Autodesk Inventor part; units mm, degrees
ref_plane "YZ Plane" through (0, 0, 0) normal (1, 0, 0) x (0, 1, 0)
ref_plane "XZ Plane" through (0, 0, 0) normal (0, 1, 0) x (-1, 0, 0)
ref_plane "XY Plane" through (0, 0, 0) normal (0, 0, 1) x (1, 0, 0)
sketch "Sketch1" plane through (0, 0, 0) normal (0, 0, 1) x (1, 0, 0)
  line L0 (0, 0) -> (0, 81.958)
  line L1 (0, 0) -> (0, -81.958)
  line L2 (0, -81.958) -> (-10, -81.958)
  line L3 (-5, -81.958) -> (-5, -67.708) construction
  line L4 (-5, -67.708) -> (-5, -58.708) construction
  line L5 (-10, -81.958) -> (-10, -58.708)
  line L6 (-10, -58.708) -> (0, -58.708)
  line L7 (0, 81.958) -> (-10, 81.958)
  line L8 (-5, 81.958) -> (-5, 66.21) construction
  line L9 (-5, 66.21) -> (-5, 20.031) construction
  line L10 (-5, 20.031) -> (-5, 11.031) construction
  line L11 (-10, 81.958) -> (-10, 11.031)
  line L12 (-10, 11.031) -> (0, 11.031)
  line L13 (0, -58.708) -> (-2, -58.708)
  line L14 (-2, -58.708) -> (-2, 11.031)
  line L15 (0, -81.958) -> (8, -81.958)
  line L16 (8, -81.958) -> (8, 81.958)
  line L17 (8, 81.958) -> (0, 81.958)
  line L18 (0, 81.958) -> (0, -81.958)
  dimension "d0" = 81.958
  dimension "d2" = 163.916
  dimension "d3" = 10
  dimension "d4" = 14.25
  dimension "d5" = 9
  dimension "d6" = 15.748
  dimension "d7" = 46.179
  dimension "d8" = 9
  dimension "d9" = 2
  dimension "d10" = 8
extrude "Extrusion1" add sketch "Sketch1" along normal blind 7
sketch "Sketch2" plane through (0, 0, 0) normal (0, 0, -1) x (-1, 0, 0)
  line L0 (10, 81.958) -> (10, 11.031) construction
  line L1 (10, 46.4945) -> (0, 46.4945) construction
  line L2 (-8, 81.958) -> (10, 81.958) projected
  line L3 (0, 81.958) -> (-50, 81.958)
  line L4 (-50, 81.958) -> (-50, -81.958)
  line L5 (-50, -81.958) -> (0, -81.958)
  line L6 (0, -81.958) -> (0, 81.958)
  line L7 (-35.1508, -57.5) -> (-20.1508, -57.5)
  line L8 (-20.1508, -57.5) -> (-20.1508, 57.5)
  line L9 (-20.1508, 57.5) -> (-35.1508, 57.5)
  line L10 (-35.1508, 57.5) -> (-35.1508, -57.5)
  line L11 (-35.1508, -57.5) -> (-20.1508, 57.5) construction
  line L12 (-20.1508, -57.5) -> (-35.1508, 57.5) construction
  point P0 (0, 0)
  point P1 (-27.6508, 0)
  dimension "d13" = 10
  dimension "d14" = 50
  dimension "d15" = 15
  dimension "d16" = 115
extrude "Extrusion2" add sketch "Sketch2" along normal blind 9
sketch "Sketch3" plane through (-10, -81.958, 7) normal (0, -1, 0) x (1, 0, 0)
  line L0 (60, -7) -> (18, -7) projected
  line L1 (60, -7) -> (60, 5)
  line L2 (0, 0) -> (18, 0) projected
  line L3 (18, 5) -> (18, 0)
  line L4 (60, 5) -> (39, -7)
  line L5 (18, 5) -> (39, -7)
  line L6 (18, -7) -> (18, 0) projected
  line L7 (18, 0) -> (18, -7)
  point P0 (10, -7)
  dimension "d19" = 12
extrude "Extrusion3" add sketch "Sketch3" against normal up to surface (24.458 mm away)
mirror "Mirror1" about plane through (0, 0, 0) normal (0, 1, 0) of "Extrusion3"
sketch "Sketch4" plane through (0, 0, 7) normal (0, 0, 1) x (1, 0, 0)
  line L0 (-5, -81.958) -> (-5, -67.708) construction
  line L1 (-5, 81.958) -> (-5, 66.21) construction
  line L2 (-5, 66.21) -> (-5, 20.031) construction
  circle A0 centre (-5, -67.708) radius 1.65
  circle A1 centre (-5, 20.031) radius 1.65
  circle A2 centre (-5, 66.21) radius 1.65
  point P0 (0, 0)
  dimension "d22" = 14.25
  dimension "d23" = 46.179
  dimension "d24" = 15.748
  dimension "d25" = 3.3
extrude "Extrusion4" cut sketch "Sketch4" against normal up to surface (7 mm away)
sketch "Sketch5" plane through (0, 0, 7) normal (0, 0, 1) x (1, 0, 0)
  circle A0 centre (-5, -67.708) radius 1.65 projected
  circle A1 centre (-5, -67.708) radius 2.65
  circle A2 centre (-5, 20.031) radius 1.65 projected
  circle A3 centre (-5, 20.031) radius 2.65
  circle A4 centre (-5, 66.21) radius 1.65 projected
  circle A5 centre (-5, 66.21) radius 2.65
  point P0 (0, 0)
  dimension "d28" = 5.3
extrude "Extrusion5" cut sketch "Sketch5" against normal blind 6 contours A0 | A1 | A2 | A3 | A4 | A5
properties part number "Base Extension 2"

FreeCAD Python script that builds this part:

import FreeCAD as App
import Part
import Sketcher
Q = App.Units.Quantity

doc = App.newDocument("Part")
body = doc.addObject("PartDesign::Body", "Body")

# Sketch on XY plane
sketch1 = body.newObject("Sketcher::SketchObject", "Sketch")
sketch1.AttachmentSupport = (doc.getObject("XY_Plane"), [""])
sketch1.MapMode = "FlatFace"
sketch1.addGeometry([
    Part.LineSegment(App.Vector(-2, 11, 0), App.Vector(-2, -59, 0)),  # 0
    Part.LineSegment(App.Vector(-2, -59, 0), App.Vector(-10, -59, 0)),  # 1
    Part.LineSegment(App.Vector(-10, -59, 0), App.Vector(-10, -82, 0)),  # 2
    Part.LineSegment(App.Vector(-10, -82, 0), App.Vector(8, -82, 0)),  # 3
    Part.LineSegment(App.Vector(8, -82, 0), App.Vector(8, 82, 0)),  # 4
    Part.LineSegment(App.Vector(8, 82, 0), App.Vector(-10, 82, 0)),  # 5
    Part.LineSegment(App.Vector(-10, 82, 0), App.Vector(-10, 11, 0)),  # 6
    Part.LineSegment(App.Vector(-10, 11, 0), App.Vector(-2, 11, 0)),  # 7
], False)
sketch1.addConstraint([
    Sketcher.Constraint("Coincident", 0, 2, 1, 1),
    Sketcher.Constraint("Coincident", 1, 2, 2, 1),
    Sketcher.Constraint("Coincident", 2, 2, 3, 1),
    Sketcher.Constraint("Coincident", 3, 2, 4, 1),
    Sketcher.Constraint("Coincident", 4, 2, 5, 1),
    Sketcher.Constraint("Coincident", 5, 2, 6, 1),
    Sketcher.Constraint("Coincident", 6, 2, 7, 1),
    Sketcher.Constraint("Coincident", 7, 2, 0, 1),
    Sketcher.Constraint("Vertical", 0),
    Sketcher.Constraint("Horizontal", 1),
    Sketcher.Constraint("Vertical", 2),
    Sketcher.Constraint("Horizontal", 3),
    Sketcher.Constraint("Vertical", 4),
    Sketcher.Constraint("Horizontal", 5),
    Sketcher.Constraint("Vertical", 6),
    Sketcher.Constraint("Horizontal", 7),
    Sketcher.Constraint("Symmetric", 2, 2, 5, 2, -1),
    Sketcher.Constraint("DistanceX", 1, 2, 1, 1, Q("8 mm")),
    Sketcher.Constraint("DistanceX", 0, 2, -1, 1, Q("2 mm")),
    Sketcher.Constraint("DistanceX", -1, 1, 3, 2, Q("8 mm")),
    Sketcher.Constraint("DistanceY", 4, 1, 4, 2, Q("163.916 mm")),
    Sketcher.Constraint("DistanceY", 2, 2, 2, 1, Q("23.25 mm")),
    Sketcher.Constraint("DistanceY", 0, 2, 0, 1, Q("69.739 mm")),
])
pad1 = body.newObject("PartDesign::Pad", "Pad")
pad1.Profile = sketch1
pad1.Length = 7

# Sketch on XY plane
sketch2 = body.newObject("Sketcher::SketchObject", "Sketch001")
sketch2.AttachmentSupport = (doc.getObject("XY_Plane"), [""])
sketch2.MapMode = "FlatFace"
sketch2.addGeometry([
    Part.LineSegment(App.Vector(0, 82, 0), App.Vector(50, 82, 0)),  # 0
    Part.LineSegment(App.Vector(50, 82, 0), App.Vector(50, -82, 0)),  # 1
    Part.LineSegment(App.Vector(50, -82, 0), App.Vector(0, -82, 0)),  # 2
    Part.LineSegment(App.Vector(0, -82, 0), App.Vector(0, 82, 0)),  # 3
    Part.LineSegment(App.Vector(20, -58, 0), App.Vector(35, -58, 0)),  # 4
    Part.LineSegment(App.Vector(35, -58, 0), App.Vector(35, 58, 0)),  # 5
    Part.LineSegment(App.Vector(35, 58, 0), App.Vector(20, 58, 0)),  # 6
    Part.LineSegment(App.Vector(20, 58, 0), App.Vector(20, -58, 0)),  # 7
], False)
sketch2.addConstraint([
    Sketcher.Constraint("Coincident", 0, 2, 1, 1),
    Sketcher.Constraint("Coincident", 1, 2, 2, 1),
    Sketcher.Constraint("Coincident", 2, 2, 3, 1),
    Sketcher.Constraint("Coincident", 3, 2, 0, 1),
    Sketcher.Constraint("Coincident", 4, 2, 5, 1),
    Sketcher.Constraint("Coincident", 5, 2, 6, 1),
    Sketcher.Constraint("Coincident", 6, 2, 7, 1),
    Sketcher.Constraint("Coincident", 7, 2, 4, 1),
    Sketcher.Constraint("Horizontal", 0),
    Sketcher.Constraint("Vertical", 1),
    Sketcher.Constraint("Horizontal", 2),
    Sketcher.Constraint("Vertical", 3),
    Sketcher.Constraint("Horizontal", 4),
    Sketcher.Constraint("Vertical", 5),
    Sketcher.Constraint("Horizontal", 6),
    Sketcher.Constraint("Vertical", 7),
    Sketcher.Constraint("Symmetric", 2, 2, 3, 2, -1, 1),
    Sketcher.Constraint("DistanceX", 0, 1, 0, 2, Q("50 mm")),
    Sketcher.Constraint("DistanceX", 4, 1, 4, 2, Q("15 mm")),
    Sketcher.Constraint("DistanceY", 5, 1, 5, 2, Q("115 mm")),
    Sketcher.Constraint("DistanceY", 4, 2, -1, 1, Q("57.5 mm")),
    Sketcher.Constraint("DistanceY", 1, 2, 1, 1, Q("163.916 mm")),
    Sketcher.Constraint("DistanceX", -1, 1, 4, 2, Q("35.1508 mm")),
])
pad2 = body.newObject("PartDesign::Pad", "Pad001")
pad2.Profile = sketch2
pad2.Length = 9
pad2.Reversed = True

# Sketch on XZ plane
sketch3 = body.newObject("Sketcher::SketchObject", "Sketch002")
sketch3.AttachmentSupport = (doc.getObject("XZ_Plane"), [""])
sketch3.MapMode = "FlatFace"
sketch3.AttachmentOffset = App.Placement(App.Vector(0, 0, 81.958), App.Rotation())
sketch3.addGeometry([
    Part.LineSegment(App.Vector(8, 0, 0), App.Vector(29, 0, 0)),  # 0
    Part.LineSegment(App.Vector(29, 0, 0), App.Vector(8, 12, 0)),  # 1
    Part.LineSegment(App.Vector(8, 12, 0), App.Vector(8, 0, 0)),  # 2
    Part.LineSegment(App.Vector(29, 0, 0), App.Vector(50, 0, 0)),  # 3
    Part.LineSegment(App.Vector(50, 0, 0), App.Vector(50, 12, 0)),  # 4
    Part.LineSegment(App.Vector(50, 12, 0), App.Vector(29, 0, 0)),  # 5
], False)
sketch3.addConstraint([
    Sketcher.Constraint("Coincident", 0, 2, 1, 1),
    Sketcher.Constraint("Coincident", 1, 2, 2, 1),
    Sketcher.Constraint("Coincident", 2, 2, 0, 1),
    Sketcher.Constraint("Coincident", 3, 2, 4, 1),
    Sketcher.Constraint("Coincident", 4, 2, 5, 1),
    Sketcher.Constraint("Coincident", 5, 2, 3, 1),
    Sketcher.Constraint("Horizontal", 0),
    Sketcher.Constraint("Vertical", 2),
    Sketcher.Constraint("Horizontal", 3),
    Sketcher.Constraint("Vertical", 4),
    Sketcher.Constraint("Coincident", 5, 2, 0, 2),
    Sketcher.Constraint("PointOnObject", 0, 2, -1),
    Sketcher.Constraint("Horizontal", 1, 2, 4, 2),
    Sketcher.Constraint("Equal", 0, 3),
    Sketcher.Constraint("DistanceY", 2, 2, 2, 1, Q("12 mm")),
    Sketcher.Constraint("DistanceX", 0, 1, 0, 2, Q("21 mm")),
    Sketcher.Constraint("DistanceX", -1, 1, 0, 2, Q("29 mm")),
])
pad3 = body.newObject("PartDesign::Pad", "Pad002")
pad3.Profile = sketch3
pad3.Length = 24.458
pad3.Reversed = True
doc.recompute()

mirrored = body.newObject("PartDesign::Mirrored", "Mirrored")
mirrored.Originals = [pad3]
mirrored.MirrorPlane = (doc.getObject("XZ_Plane"), [""])
body.Tip = mirrored

# Sketch on XY plane
sketch4 = body.newObject("Sketcher::SketchObject", "Sketch003")
sketch4.AttachmentSupport = (doc.getObject("XY_Plane"), [""])
sketch4.MapMode = "FlatFace"
sketch4.AttachmentOffset = App.Placement(App.Vector(0, 0, 7), App.Rotation())
sketch4.addGeometry([
    Part.Circle(App.Vector(-5, -67.7, 0), App.Vector(0, 0, 1), 1.6),
    Part.Circle(App.Vector(-5, 20, 0), App.Vector(0, 0, 1), 1.6),
    Part.Circle(App.Vector(-5, 66.2, 0), App.Vector(0, 0, 1), 1.6),
], False)
sketch4.addConstraint([
    Sketcher.Constraint("Equal", 0, 1),
    Sketcher.Constraint("Equal", 1, 2),
    Sketcher.Constraint("Vertical", 0, 3, 1, 3),
    Sketcher.Constraint("Vertical", 1, 3, 2, 3),
    Sketcher.Constraint("Diameter", 0, Q("3.3 mm")),
    Sketcher.Constraint("DistanceX", 0, 3, -1, 1, Q("5 mm")),
    Sketcher.Constraint("DistanceY", 1, 3, 2, 3, Q("46.179 mm")),
    Sketcher.Constraint("DistanceY", -1, 1, 2, 3, Q("66.21 mm")),
    Sketcher.Constraint("DistanceY", 0, 3, -1, 1, Q("67.708 mm")),
])
pocket1 = body.newObject("PartDesign::Pocket", "Pocket")
pocket1.Profile = sketch4
pocket1.Length = 7

# Sketch on XY plane
sketch5 = body.newObject("Sketcher::SketchObject", "Sketch004")
sketch5.AttachmentSupport = (doc.getObject("XY_Plane"), [""])
sketch5.MapMode = "FlatFace"
sketch5.AttachmentOffset = App.Placement(App.Vector(0, 0, 7), App.Rotation())
sketch5.addGeometry([
    Part.Circle(App.Vector(-5, -67.7, 0), App.Vector(0, 0, 1), 2.6),
    Part.Circle(App.Vector(-5, 20, 0), App.Vector(0, 0, 1), 2.6),
    Part.Circle(App.Vector(-5, 66.2, 0), App.Vector(0, 0, 1), 2.6),
], False)
sketch5.addConstraint([
    Sketcher.Constraint("Equal", 0, 1),
    Sketcher.Constraint("Equal", 1, 2),
    Sketcher.Constraint("Vertical", 0, 3, 1, 3),
    Sketcher.Constraint("Vertical", 1, 3, 2, 3),
    Sketcher.Constraint("Diameter", 0, Q("5.3 mm")),
    Sketcher.Constraint("DistanceX", 0, 3, -1, 1, Q("5 mm")),
    Sketcher.Constraint("DistanceY", -1, 1, 2, 3, Q("66.21 mm")),
    Sketcher.Constraint("DistanceY", 0, 3, -1, 1, Q("67.708 mm")),
    Sketcher.Constraint("DistanceY", -1, 1, 1, 3, Q("20.031 mm")),
])
pocket2 = body.newObject("PartDesign::Pocket", "Pocket001")
pocket2.Profile = sketch5
pocket2.Length = 6

doc.recompute()
